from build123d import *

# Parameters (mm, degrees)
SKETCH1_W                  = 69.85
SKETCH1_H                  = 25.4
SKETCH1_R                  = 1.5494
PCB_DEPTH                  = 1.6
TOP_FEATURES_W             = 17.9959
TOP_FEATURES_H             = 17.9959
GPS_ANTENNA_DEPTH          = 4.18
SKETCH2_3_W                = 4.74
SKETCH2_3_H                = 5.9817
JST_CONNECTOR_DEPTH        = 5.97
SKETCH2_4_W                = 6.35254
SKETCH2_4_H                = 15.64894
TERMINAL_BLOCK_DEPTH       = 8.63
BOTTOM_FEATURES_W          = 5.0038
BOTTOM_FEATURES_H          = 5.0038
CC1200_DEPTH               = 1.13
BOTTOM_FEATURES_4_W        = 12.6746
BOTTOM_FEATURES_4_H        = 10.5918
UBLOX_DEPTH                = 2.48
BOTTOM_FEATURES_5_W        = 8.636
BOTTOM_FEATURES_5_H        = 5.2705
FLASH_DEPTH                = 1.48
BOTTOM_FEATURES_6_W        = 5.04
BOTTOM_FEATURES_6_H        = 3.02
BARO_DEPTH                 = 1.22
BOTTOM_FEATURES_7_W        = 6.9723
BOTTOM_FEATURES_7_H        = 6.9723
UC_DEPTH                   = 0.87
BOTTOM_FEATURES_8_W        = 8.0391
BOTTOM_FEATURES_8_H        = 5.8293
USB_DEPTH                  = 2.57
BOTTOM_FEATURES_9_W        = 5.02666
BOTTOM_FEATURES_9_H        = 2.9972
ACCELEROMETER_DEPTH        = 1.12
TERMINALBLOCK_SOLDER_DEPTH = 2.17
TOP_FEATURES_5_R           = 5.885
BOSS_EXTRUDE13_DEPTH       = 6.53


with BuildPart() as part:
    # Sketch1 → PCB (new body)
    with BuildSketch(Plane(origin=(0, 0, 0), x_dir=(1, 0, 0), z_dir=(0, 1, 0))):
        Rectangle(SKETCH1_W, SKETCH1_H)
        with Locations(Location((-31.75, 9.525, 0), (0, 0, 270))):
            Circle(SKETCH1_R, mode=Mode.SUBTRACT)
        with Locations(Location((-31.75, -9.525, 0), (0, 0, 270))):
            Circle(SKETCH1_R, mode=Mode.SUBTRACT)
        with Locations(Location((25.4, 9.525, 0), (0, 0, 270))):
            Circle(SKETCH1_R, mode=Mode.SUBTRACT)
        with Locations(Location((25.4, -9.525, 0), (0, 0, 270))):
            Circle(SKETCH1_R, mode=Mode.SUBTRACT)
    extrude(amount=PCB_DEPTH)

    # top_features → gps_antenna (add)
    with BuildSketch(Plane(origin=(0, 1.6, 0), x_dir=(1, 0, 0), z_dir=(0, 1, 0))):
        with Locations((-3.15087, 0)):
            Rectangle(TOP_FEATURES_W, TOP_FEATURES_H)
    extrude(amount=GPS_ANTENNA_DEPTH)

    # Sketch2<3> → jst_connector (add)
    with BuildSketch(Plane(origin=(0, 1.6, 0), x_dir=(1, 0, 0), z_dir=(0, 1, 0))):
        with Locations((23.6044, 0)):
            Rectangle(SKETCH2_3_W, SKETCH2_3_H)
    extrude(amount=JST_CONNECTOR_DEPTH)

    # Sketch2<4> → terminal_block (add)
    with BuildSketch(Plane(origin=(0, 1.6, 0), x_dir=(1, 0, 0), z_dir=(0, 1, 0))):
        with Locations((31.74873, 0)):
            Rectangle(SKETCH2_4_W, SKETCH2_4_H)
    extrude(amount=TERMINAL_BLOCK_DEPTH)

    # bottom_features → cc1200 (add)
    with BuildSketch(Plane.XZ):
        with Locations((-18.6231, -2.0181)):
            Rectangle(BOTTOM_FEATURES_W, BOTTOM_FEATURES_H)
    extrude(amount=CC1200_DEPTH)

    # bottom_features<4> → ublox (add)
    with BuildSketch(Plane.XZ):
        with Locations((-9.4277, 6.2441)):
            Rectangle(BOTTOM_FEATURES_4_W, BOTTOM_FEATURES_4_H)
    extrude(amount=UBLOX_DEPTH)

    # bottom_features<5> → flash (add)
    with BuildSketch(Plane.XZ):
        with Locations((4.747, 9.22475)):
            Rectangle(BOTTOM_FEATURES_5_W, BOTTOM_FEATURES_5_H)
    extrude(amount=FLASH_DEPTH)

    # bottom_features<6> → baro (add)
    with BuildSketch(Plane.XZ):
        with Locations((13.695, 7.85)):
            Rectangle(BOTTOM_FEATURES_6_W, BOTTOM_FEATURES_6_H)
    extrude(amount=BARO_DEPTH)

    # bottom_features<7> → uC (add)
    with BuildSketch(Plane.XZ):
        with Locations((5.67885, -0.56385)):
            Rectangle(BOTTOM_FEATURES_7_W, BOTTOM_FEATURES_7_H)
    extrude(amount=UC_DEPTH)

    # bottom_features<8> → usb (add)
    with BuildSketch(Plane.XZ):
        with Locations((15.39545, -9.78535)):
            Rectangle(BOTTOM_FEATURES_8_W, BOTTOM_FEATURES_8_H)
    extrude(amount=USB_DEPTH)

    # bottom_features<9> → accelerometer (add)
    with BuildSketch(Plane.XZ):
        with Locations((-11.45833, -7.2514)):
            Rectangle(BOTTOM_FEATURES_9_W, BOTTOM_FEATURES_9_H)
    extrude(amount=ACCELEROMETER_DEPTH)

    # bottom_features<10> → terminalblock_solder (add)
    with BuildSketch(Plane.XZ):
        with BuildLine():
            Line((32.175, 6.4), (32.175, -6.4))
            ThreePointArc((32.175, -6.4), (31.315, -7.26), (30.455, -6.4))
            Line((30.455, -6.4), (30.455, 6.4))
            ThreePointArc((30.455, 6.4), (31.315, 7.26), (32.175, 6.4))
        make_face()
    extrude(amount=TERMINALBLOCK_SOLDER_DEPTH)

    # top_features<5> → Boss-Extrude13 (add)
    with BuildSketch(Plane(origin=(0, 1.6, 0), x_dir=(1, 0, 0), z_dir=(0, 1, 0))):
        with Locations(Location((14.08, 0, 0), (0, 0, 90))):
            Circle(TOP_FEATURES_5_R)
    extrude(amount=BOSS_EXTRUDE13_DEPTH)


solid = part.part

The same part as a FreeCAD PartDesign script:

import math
import FreeCAD as App
import Part
import Sketcher

V = App.Vector
Q = App.Units.Quantity


def add_polygon(sketch, points):
    """Adds a closed chain of lines whose ends are joined by coincident constraints."""
    first, n = sketch.GeometryCount, len(points)
    for a, b in zip(points, points[1:] + points[:1]):
        sketch.addGeometry(Part.LineSegment(App.Vector(*a, 0), App.Vector(*b, 0)), False)
    for i in range(n):
        sketch.addConstraint(Sketcher.Constraint("Coincident", first + i, 2, first + (i + 1) % n, 1))

doc = App.newDocument("Part")
body = doc.addObject("PartDesign::Body", "Body")

# Sketch on XZ plane
sketch1 = body.newObject("Sketcher::SketchObject", "Sketch")
sketch1.AttachmentSupport = (doc.getObject("XZ_Plane"), [""])
sketch1.MapMode = "FlatFace"
add_polygon(sketch1, [(-34.9, -12.7), (-34.9, 12.7), (34.9, 12.7), (34.9, -12.7)])  # lines 0-3
sketch1.addGeometry(Part.Circle(V(-31.8, 9.5, 0), V(0, 0, 1), 1.5), False)  # 4
sketch1.addGeometry(Part.Circle(V(25.4, 9.5, 0), V(0, 0, 1), 1.5), False)  # 5
sketch1.addGeometry(Part.Circle(V(-31.8, -9.5, 0), V(0, 0, 1), 1.5), False)  # 6
sketch1.addGeometry(Part.Circle(V(25.4, -9.5, 0), V(0, 0, 1), 1.5), False)  # 7
sketch1.addConstraint([
    Sketcher.Constraint("Vertical", 0),
    Sketcher.Constraint("Horizontal", 1),
    Sketcher.Constraint("Vertical", 2),
    Sketcher.Constraint("Horizontal", 3),
    Sketcher.Constraint("Equal", 4, 5),
    Sketcher.Constraint("Equal", 5, 6),
    Sketcher.Constraint("Equal", 6, 7),
    Sketcher.Constraint("Symmetric", 0, 2, 2, 2, -1, 1),
    Sketcher.Constraint("Symmetric", 4, 3, 6, 3, -1),
    Sketcher.Constraint("Symmetric", 5, 3, 7, 3, -1),
    Sketcher.Constraint("Horizontal", 4, 3, 5, 3),
    Sketcher.Constraint("DistanceY", 0, 1, 0, 2, Q("1 in")),
    Sketcher.Constraint("Diameter", 4, Q("0.122 in")),
    Sketcher.Constraint("DistanceX", -1, 1, 5, 3, Q("1 in")),
    Sketcher.Constraint("DistanceX", 1, 1, 1, 2, Q("2.75 in")),
    Sketcher.Constraint("DistanceX", 4, 3, -1, 1, Q("1.25 in")),
    Sketcher.Constraint("DistanceY", 6, 3, 4, 3, Q("0.75 in")),
])
pad1 = body.newObject("PartDesign::Pad", "Pad")
pad1.Profile = sketch1
pad1.Length = 1.6
pad1.Reversed = True

# Sketch on XZ plane
sketch2 = body.newObject("Sketcher::SketchObject", "Sketch001")
sketch2.AttachmentSupport = (doc.getObject("XZ_Plane"), [""])
sketch2.MapMode = "FlatFace"
sketch2.AttachmentOffset = App.Placement(V(0, 0, -1.6), App.Rotation())
add_polygon(sketch2, [(-12, -9), (-12, 9), (6, 9), (6, -9)])  # lines 0-3
sketch2.addConstraint([
    Sketcher.Constraint("Vertical", 0),
    Sketcher.Constraint("Horizontal", 1),
    Sketcher.Constraint("Vertical", 2),
    Sketcher.Constraint("Horizontal", 3),
    Sketcher.Constraint("Equal", 3, 0),
    Sketcher.Constraint("DistanceX", 1, 1, 1, 2, Q("0.7085 in")),
    Sketcher.Constraint("DistanceX", 0, 2, -1, 1, Q("0.4783 in")),
    Sketcher.Constraint("DistanceY", -1, 1, 0, 2, 8.99795),
])
pad2 = body.newObject("PartDesign::Pad", "Pad001")
pad2.Profile = sketch2
pad2.Length = 4.18
pad2.Reversed = True

# Sketch on XZ plane
sketch3 = body.newObject("Sketcher::SketchObject", "Sketch002")
sketch3.AttachmentSupport = (doc.getObject("XZ_Plane"), [""])
sketch3.MapMode = "FlatFace"
sketch3.AttachmentOffset = App.Placement(V(0, 0, -1.6), App.Rotation())
add_polygon(sketch3, [(21.2, -3), (21.2, 3), (26, 3), (26, -3)])  # lines 0-3
sketch3.addConstraint([
    Sketcher.Constraint("Vertical", 0),
    Sketcher.Constraint("Horizontal", 1),
    Sketcher.Constraint("Vertical", 2),
    Sketcher.Constraint("Horizontal", 3),
    Sketcher.Constraint("DistanceY", 0, 1, 0, 2, Q("0.2355 in")),
    Sketcher.Constraint("DistanceX", -1, 1, 0, 2, Q("0.836 in")),
    Sketcher.Constraint("DistanceX", 1, 1, 1, 2, 4.74),
    Sketcher.Constraint("DistanceY", -1, 1, 0, 2, 2.99085),
])
pad3 = body.newObject("PartDesign::Pad", "Pad002")
pad3.Profile = sketch3
pad3.Length = 5.97
pad3.Reversed = True

# Sketch on XZ plane
sketch4 = body.newObject("Sketcher::SketchObject", "Sketch003")
sketch4.AttachmentSupport = (doc.getObject("XZ_Plane"), [""])
sketch4.MapMode = "FlatFace"
sketch4.AttachmentOffset = App.Placement(V(0, 0, -1.6), App.Rotation())
add_polygon(sketch4, [(29, -8), (29, 8), (35, 8), (35, -8)])  # lines 0-3
sketch4.addConstraint([
    Sketcher.Constraint("Vertical", 0),
    Sketcher.Constraint("Horizontal", 1),
    Sketcher.Constraint("Vertical", 2),
    Sketcher.Constraint("Horizontal", 3),
    Sketcher.Constraint("DistanceX", 1, 1, 1, 2, Q("0.2501 in")),
    Sketcher.Constraint("DistanceY", 0, 1, 0, 2, Q("0.6161 in")),
    Sketcher.Constraint("DistanceX", -1, 1, 1, 2, Q("1.375 in")),
    Sketcher.Constraint("DistanceY", -1, 1, 0, 2, 7.82447),
])
pad4 = body.newObject("PartDesign::Pad", "Pad003")
pad4.Profile = sketch4
pad4.Length = 8.63
pad4.Reversed = True

# Sketch on XZ plane
sketch5 = body.newObject("Sketcher::SketchObject", "Sketch004")
sketch5.AttachmentSupport = (doc.getObject("XZ_Plane"), [""])
sketch5.MapMode = "FlatFace"
add_polygon(sketch5, [(-21, 0), (-21, -5), (-16, -5), (-16, 0)])  # lines 0-3
sketch5.addConstraint([
    Sketcher.Constraint("Vertical", 0),
    Sketcher.Constraint("Horizontal", 1),
    Sketcher.Constraint("Vertical", 2),
    Sketcher.Constraint("Horizontal", 3),
    Sketcher.Constraint("Equal", 3, 0),
    Sketcher.Constraint("DistanceX", 1, 1, 1, 2, Q("0.197 in")),
    Sketcher.Constraint("DistanceX", 0, 2, -1, 1, 21.125),
    Sketcher.Constraint("DistanceY", 0, 2, -1, 1, 4.52),
])
pad5 = body.newObject("PartDesign::Pad", "Pad004")
pad5.Profile = sketch5
pad5.Length = 1.13

# Sketch on XZ plane
sketch6 = body.newObject("Sketcher::SketchObject", "Sketch005")
sketch6.AttachmentSupport = (doc.getObject("XZ_Plane"), [""])
sketch6.MapMode = "FlatFace"
add_polygon(sketch6, [(-16, 12), (-16, 1), (-3, 1), (-3, 12)])  # lines 0-3
sketch6.addConstraint([
    Sketcher.Constraint("Vertical", 0),
    Sketcher.Constraint("Horizontal", 1),
    Sketcher.Constraint("Vertical", 2),
    Sketcher.Constraint("Horizontal", 3),
    Sketcher.Constraint("DistanceX", 1, 1, 1, 2, Q("0.499 in")),
    Sketcher.Constraint("DistanceY", 0, 2, 0, 1, Q("0.417 in")),
    Sketcher.Constraint("DistanceX", 0, 2, -1, 1, 15.765),
    Sketcher.Constraint("DistanceY", -1, 1, 0, 2, 0.9482),
])
pad6 = body.newObject("PartDesign::Pad", "Pad005")
pad6.Profile = sketch6
pad6.Length = 2.48

# Sketch on XZ plane
sketch7 = body.newObject("Sketcher::SketchObject", "Sketch006")
sketch7.AttachmentSupport = (doc.getObject("XZ_Plane"), [""])
sketch7.MapMode = "FlatFace"
add_polygon(sketch7, [(0, 12), (0, 7), (9, 7), (9, 12)])  # lines 0-3
sketch7.addConstraint([
    Sketcher.Constraint("Vertical", 0),
    Sketcher.Constraint("Horizontal", 1),
    Sketcher.Constraint("Vertical", 2),
    Sketcher.Constraint("Horizontal", 3),
    Sketcher.Constraint("DistanceX", 1, 1, 1, 2, Q("0.34 in")),
    Sketcher.Constraint("DistanceY", 0, 2, 0, 1, Q("0.2075 in")),
    Sketcher.Constraint("DistanceX", -1, 1, 0, 2, 0.429),
    Sketcher.Constraint("DistanceY", -1, 1, 0, 2, 6.5895),
])
pad7 = body.newObject("PartDesign::Pad", "Pad006")
pad7.Profile = sketch7
pad7.Length = 1.48

# Sketch on XZ plane
sketch8 = body.newObject("Sketcher::SketchObject", "Sketch007")
sketch8.AttachmentSupport = (doc.getObject("XZ_Plane"), [""])
sketch8.MapMode = "FlatFace"
add_polygon(sketch8, [(11.2, 9.4), (11.2, 6.3), (16.2, 6.3), (16.2, 9.4)])  # lines 0-3
sketch8.addConstraint([
    Sketcher.Constraint("Vertical", 0),
    Sketcher.Constraint("Horizontal", 1),
    Sketcher.Constraint("Vertical", 2),
    Sketcher.Constraint("Horizontal", 3),
    Sketcher.Constraint("DistanceX", 1, 1, 1, 2, 5.04),
    Sketcher.Constraint("DistanceY", 0, 2, 0, 1, 3.02),
    Sketcher.Constraint("DistanceX", -1, 1, 0, 2, 11.175),
    Sketcher.Constraint("DistanceY", -1, 1, 0, 2, 6.34),
])
pad8 = body.newObject("PartDesign::Pad", "Pad007")
pad8.Profile = sketch8
pad8.Length = 1.22

# Sketch on XZ plane
sketch9 = body.newObject("Sketcher::SketchObject", "Sketch008")
sketch9.AttachmentSupport = (doc.getObject("XZ_Plane"), [""])
sketch9.MapMode = "FlatFace"
add_polygon(sketch9, [(2, 3), (2, -4), (9, -4), (9, 3)])  # lines 0-3
sketch9.addConstraint([
    Sketcher.Constraint("Vertical", 0),
    Sketcher.Constraint("Horizontal", 1),
    Sketcher.Constraint("Vertical", 2),
    Sketcher.Constraint("Horizontal", 3),
    Sketcher.Constraint("Equal", 3, 0),
    Sketcher.Constraint("DistanceX", 1, 1, 1, 2, Q("0.2745 in")),
    Sketcher.Constraint("DistanceX", -1, 1, 0, 2, 2.1927),
    Sketcher.Constraint("DistanceY", 0, 2, -1, 1, 4.05),
])
pad9 = body.newObject("PartDesign::Pad", "Pad008")
pad9.Profile = sketch9
pad9.Length = 0.87

# Sketch on XZ plane
sketch10 = body.newObject("Sketcher::SketchObject", "Sketch009")
sketch10.AttachmentSupport = (doc.getObject("XZ_Plane"), [""])
sketch10.MapMode = "FlatFace"
add_polygon(sketch10, [(11, -7), (11, -13), (19, -13), (19, -7)])  # lines 0-3
sketch10.addConstraint([
    Sketcher.Constraint("Vertical", 0),
    Sketcher.Constraint("Horizontal", 1),
    Sketcher.Constraint("Vertical", 2),
    Sketcher.Constraint("Horizontal", 3),
    Sketcher.Constraint("DistanceY", 0, 2, -1, 1, Q("0.5 in")),
    Sketcher.Constraint("DistanceX", 1, 1, 1, 2, Q("0.3165 in")),
    Sketcher.Constraint("DistanceY", 0, 2, 0, 1, Q("0.2295 in")),
    Sketcher.Constraint("DistanceX", -1, 1, 0, 2, 11.3759),
])
pad10 = body.newObject("PartDesign::Pad", "Pad009")
pad10.Profile = sketch10
pad10.Length = 2.57

# Sketch on XZ plane
sketch11 = body.newObject("Sketcher::SketchObject", "Sketch010")
sketch11.AttachmentSupport = (doc.getObject("XZ_Plane"), [""])
sketch11.MapMode = "FlatFace"
add_polygon(sketch11, [(-14, -5.8), (-14, -8.8), (-8.9, -8.8), (-8.9, -5.8)])  # lines 0-3
sketch11.addConstraint([
    Sketcher.Constraint("Vertical", 0),
    Sketcher.Constraint("Horizontal", 1),
    Sketcher.Constraint("Vertical", 2),
    Sketcher.Constraint("Horizontal", 3),
    Sketcher.Constraint("DistanceY", 0, 2, 0, 1, Q("0.118 in")),
    Sketcher.Constraint("DistanceX", 1, 1, 1, 2, Q("0.1979 in")),
    Sketcher.Constraint("DistanceY", 0, 2, -1, 1, 8.75),
    Sketcher.Constraint("DistanceX", 1, 2, -1, 1, 8.945),
])
pad11 = body.newObject("PartDesign::Pad", "Pad010")
pad11.Profile = sketch11
pad11.Length = 1.12

# Sketch on XZ plane
sketch12 = body.newObject("Sketcher::SketchObject", "Sketch011")
sketch12.AttachmentSupport = (doc.getObject("XZ_Plane"), [""])
sketch12.MapMode = "FlatFace"
sketch12.addGeometry([
    Part.LineSegment(V(32.2, -6.4, 0), V(32.2, 6.4, 0)),
    Part.ArcOfCircle(Part.Circle(V(31.3, 6.4, 0), V(0, 0, 1), 0.9), math.radians(0), math.radians(180)),
    Part.LineSegment(V(30.5, 6.4, 0), V(30.5, -6.4, 0)),
    Part.ArcOfCircle(Part.Circle(V(31.3, -6.4, 0), V(0, 0, 1), 0.9), math.radians(180), math.radians(360)),
], False)
sketch12.addConstraint([
    Sketcher.Constraint("Tangent", 0, 2, 1, 1),
    Sketcher.Constraint("Tangent", 1, 2, 2, 1),
    Sketcher.Constraint("Tangent", 2, 2, 3, 1),
    Sketcher.Constraint("Tangent", 3, 2, 0, 1),
    Sketcher.Constraint("Vertical", 0),
    Sketcher.Constraint("Vertical", 2),
    Sketcher.Constraint("Radius", 1, 0.86),
    Sketcher.Constraint("DistanceY", 0, 1, 0, 2, 12.8),
    Sketcher.Constraint("DistanceX", -1, 1, 1, 3, 31.315),
    Sketcher.Constraint("DistanceY", -1, 1, 1, 3, 6.4),
])
pad12 = body.newObject("PartDesign::Pad", "Pad011")
pad12.Profile = sketch12
pad12.Length = 2.17

# Sketch on XZ plane
sketch13 = body.newObject("Sketcher::SketchObject", "Sketch012")
sketch13.AttachmentSupport = (doc.getObject("XZ_Plane"), [""])
sketch13.MapMode = "FlatFace"
sketch13.AttachmentOffset = App.Placement(V(0, 0, -1.6), App.Rotation())
sketch13.addGeometry(Part.Circle(V(14, 0, 0), V(0, 0, 1), 6), False)
sketch13.addConstraint([
    Sketcher.Constraint("PointOnObject", 0, 3, -1),
    Sketcher.Constraint("Diameter", 0, 11.77),
    Sketcher.Constraint("DistanceX", -1, 1, 0, 3, 14.08),
])
pad13 = body.newObject("PartDesign::Pad", "Pad012")
pad13.Profile = sketch13
pad13.Length = 6.53
pad13.Reversed = True

doc.recompute()
